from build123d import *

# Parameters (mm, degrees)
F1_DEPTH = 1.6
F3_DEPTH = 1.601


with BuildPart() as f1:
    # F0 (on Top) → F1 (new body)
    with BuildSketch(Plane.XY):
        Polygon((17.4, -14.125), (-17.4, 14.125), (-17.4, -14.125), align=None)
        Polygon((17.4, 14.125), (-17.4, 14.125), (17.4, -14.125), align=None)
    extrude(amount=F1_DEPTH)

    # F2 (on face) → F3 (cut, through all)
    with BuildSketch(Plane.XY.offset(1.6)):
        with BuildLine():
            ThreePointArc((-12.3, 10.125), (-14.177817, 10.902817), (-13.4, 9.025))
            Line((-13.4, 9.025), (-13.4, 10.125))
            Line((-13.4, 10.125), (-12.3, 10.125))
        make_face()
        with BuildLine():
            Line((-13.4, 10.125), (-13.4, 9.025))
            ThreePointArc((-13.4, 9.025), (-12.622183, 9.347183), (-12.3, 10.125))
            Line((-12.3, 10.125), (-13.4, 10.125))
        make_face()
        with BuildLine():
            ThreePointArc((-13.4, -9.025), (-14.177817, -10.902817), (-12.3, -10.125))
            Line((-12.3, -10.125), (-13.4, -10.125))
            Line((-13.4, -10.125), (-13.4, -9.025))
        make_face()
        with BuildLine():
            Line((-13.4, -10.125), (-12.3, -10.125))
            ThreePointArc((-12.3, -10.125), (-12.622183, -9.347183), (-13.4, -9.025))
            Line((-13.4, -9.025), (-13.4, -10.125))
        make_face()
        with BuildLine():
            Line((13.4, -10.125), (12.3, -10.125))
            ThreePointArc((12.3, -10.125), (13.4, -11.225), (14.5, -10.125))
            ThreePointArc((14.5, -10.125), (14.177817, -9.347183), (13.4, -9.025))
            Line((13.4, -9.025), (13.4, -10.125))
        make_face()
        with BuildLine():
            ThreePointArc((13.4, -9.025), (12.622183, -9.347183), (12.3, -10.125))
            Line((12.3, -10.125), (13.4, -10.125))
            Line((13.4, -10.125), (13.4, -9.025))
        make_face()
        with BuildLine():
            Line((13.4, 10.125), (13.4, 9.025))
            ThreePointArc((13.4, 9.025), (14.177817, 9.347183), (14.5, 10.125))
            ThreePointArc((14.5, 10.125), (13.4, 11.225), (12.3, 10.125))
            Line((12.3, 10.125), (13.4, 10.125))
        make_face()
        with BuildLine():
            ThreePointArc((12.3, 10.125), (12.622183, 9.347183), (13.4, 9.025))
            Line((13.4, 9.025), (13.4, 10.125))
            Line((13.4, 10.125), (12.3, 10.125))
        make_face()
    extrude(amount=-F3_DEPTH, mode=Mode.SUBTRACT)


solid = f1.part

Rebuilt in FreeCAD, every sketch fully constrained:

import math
import FreeCAD as App
import Part
import Sketcher
from FreeCAD import Vector
Q = App.Units.Quantity

doc = App.newDocument("Part")
body = doc.addObject("PartDesign::Body", "Body")

# Sketch on XY plane
sketch1 = doc.addObject("Sketcher::SketchObject", "Sketch")
body.addObject(sketch1)
sketch1.AttachmentSupport = (doc.XY_Plane, [""])
sketch1.MapMode = "FlatFace"
sketch1.addGeometry([
    Part.LineSegment(Vector(-17, 14, 0), Vector(-17, -14, 0)),
    Part.LineSegment(Vector(-17, -14, 0), Vector(17, -14, 0)),
    Part.LineSegment(Vector(17, -14, 0), Vector(17, 14, 0)),
    Part.LineSegment(Vector(17, 14, 0), Vector(-17, 14, 0)),
], False)
sketch1.addConstraint([
    Sketcher.Constraint("Coincident", 0, 2, 1, 1),
    Sketcher.Constraint("Coincident", 1, 2, 2, 1),
    Sketcher.Constraint("Coincident", 2, 2, 3, 1),
    Sketcher.Constraint("Coincident", 3, 2, 0, 1),
    Sketcher.Constraint("Vertical", 0),
    Sketcher.Constraint("Horizontal", 1),
    Sketcher.Constraint("Vertical", 2),
    Sketcher.Constraint("Horizontal", 3),
    Sketcher.Constraint("Symmetric", 0, 2, 2, 2, -1, 1),
    Sketcher.Constraint("DistanceX", 1, 1, 1, 2, Q("34.8 mm")),
    Sketcher.Constraint("DistanceY", 0, 2, 0, 1, Q("28.25 mm")),
])
pad1 = doc.addObject("PartDesign::Pad", "Pad")
body.addObject(pad1)
pad1.Profile = sketch1
pad1.Length = 1.6

# Sketch on XY plane
sketch2 = doc.addObject("Sketcher::SketchObject", "Sketch001")
body.addObject(sketch2)
sketch2.AttachmentSupport = (doc.XY_Plane, [""])
sketch2.MapMode = "FlatFace"
sketch2.AttachmentOffset = App.Placement(Vector(0, 0, 1.6), App.Rotation())
sketch2.addGeometry([
    Part.ArcOfCircle(Part.Circle(Vector(-13.4, 10.1, 0), Vector(0, 0, 1), 1.1), math.radians(0), math.radians(270)),  # 0
    Part.ArcOfCircle(Part.Circle(Vector(-13.4, 10.1, 0), Vector(0, 0, 1), 1.1), math.radians(-90), math.radians(0)),  # 1
    Part.ArcOfCircle(Part.Circle(Vector(-13.4, -10.1, 0), Vector(0, 0, 1), 1.1), math.radians(90), math.radians(360)),  # 2
    Part.ArcOfCircle(Part.Circle(Vector(-13.4, -10.1, 0), Vector(0, 0, 1), 1.1), math.radians(0), math.radians(90)),  # 3
    Part.ArcOfCircle(Part.Circle(Vector(13.4, -10.1, 0), Vector(0, 0, 1), 1.1), math.radians(180), math.radians(360)),  # 4
    Part.ArcOfCircle(Part.Circle(Vector(13.4, -10.1, 0), Vector(0, 0, 1), 1.1), math.radians(0), math.radians(90)),  # 5
    Part.ArcOfCircle(Part.Circle(Vector(13.4, -10.1, 0), Vector(0, 0, 1), 1.1), math.radians(90), math.radians(180)),  # 6
    Part.ArcOfCircle(Part.Circle(Vector(13.4, 10.1, 0), Vector(0, 0, 1), 1.1), math.radians(-90), math.radians(0)),  # 7
    Part.ArcOfCircle(Part.Circle(Vector(13.4, 10.1, 0), Vector(0, 0, 1), 1.1), math.radians(0), math.radians(180)),  # 8
    Part.ArcOfCircle(Part.Circle(Vector(13.4, 10.1, 0), Vector(0, 0, 1), 1.1), math.radians(-180), math.radians(-90)),  # 9
], False)
sketch2.addConstraint([
    Sketcher.Constraint("Tangent", 0, 1, 1, 2),
    Sketcher.Constraint("Coincident", 1, 1, 0, 2),
    Sketcher.Constraint("Tangent", 2, 1, 3, 2),
    Sketcher.Constraint("Coincident", 3, 1, 2, 2),
    Sketcher.Constraint("Tangent", 4, 2, 5, 1),
    Sketcher.Constraint("Coincident", 5, 2, 6, 1),
    Sketcher.Constraint("Tangent", 6, 2, 4, 1),
    Sketcher.Constraint("Tangent", 7, 2, 8, 1),
    Sketcher.Constraint("Tangent", 8, 2, 9, 1),
    Sketcher.Constraint("Coincident", 9, 2, 7, 1),
    Sketcher.Constraint("Equal", 1, 2),
    Sketcher.Constraint("Equal", 3, 4),
    Sketcher.Constraint("Equal", 4, 5),
    Sketcher.Constraint("Equal", 6, 7),
    Sketcher.Constraint("Equal", 7, 8),
    Sketcher.Constraint("Symmetric", 0, 3, 4, 3, -1, 1),
    Sketcher.Constraint("Symmetric", 2, 3, 7, 3, -1, 1),
    Sketcher.Constraint("Symmetric", 2, 3, 4, 3, -2),
    Sketcher.Constraint("Horizontal", 9, 3, 0, 1),
    Sketcher.Constraint("Horizontal", 6, 3, 3, 1),
    Sketcher.Constraint("Horizontal", 3, 1, 4, 2),
    Sketcher.Constraint("Horizontal", 4, 2, 6, 2),
    Sketcher.Constraint("Horizontal", 0, 1, 7, 2),
    Sketcher.Constraint("Horizontal", 7, 2, 8, 2),
    Sketcher.Constraint("Vertical", 3, 3, 1, 1),
    Sketcher.Constraint("Vertical", 1, 1, 2, 1),
    Sketcher.Constraint("Vertical", 9, 3, 5, 2),
    Sketcher.Constraint("Vertical", 5, 2, 9, 2),
    Sketcher.Constraint("Radius", 0, Q("1.1 mm")),
    Sketcher.Constraint("DistanceX", 0, 3, -1, 1, Q("13.4 mm")),
    Sketcher.Constraint("DistanceY", 2, 3, 0, 3, Q("20.249999 mm")),
])
pocket1 = doc.addObject("PartDesign::Pocket", "Pocket")
body.addObject(pocket1)
pocket1.Profile = sketch2
pocket1.Type = "ThroughAll"

doc.recompute()
